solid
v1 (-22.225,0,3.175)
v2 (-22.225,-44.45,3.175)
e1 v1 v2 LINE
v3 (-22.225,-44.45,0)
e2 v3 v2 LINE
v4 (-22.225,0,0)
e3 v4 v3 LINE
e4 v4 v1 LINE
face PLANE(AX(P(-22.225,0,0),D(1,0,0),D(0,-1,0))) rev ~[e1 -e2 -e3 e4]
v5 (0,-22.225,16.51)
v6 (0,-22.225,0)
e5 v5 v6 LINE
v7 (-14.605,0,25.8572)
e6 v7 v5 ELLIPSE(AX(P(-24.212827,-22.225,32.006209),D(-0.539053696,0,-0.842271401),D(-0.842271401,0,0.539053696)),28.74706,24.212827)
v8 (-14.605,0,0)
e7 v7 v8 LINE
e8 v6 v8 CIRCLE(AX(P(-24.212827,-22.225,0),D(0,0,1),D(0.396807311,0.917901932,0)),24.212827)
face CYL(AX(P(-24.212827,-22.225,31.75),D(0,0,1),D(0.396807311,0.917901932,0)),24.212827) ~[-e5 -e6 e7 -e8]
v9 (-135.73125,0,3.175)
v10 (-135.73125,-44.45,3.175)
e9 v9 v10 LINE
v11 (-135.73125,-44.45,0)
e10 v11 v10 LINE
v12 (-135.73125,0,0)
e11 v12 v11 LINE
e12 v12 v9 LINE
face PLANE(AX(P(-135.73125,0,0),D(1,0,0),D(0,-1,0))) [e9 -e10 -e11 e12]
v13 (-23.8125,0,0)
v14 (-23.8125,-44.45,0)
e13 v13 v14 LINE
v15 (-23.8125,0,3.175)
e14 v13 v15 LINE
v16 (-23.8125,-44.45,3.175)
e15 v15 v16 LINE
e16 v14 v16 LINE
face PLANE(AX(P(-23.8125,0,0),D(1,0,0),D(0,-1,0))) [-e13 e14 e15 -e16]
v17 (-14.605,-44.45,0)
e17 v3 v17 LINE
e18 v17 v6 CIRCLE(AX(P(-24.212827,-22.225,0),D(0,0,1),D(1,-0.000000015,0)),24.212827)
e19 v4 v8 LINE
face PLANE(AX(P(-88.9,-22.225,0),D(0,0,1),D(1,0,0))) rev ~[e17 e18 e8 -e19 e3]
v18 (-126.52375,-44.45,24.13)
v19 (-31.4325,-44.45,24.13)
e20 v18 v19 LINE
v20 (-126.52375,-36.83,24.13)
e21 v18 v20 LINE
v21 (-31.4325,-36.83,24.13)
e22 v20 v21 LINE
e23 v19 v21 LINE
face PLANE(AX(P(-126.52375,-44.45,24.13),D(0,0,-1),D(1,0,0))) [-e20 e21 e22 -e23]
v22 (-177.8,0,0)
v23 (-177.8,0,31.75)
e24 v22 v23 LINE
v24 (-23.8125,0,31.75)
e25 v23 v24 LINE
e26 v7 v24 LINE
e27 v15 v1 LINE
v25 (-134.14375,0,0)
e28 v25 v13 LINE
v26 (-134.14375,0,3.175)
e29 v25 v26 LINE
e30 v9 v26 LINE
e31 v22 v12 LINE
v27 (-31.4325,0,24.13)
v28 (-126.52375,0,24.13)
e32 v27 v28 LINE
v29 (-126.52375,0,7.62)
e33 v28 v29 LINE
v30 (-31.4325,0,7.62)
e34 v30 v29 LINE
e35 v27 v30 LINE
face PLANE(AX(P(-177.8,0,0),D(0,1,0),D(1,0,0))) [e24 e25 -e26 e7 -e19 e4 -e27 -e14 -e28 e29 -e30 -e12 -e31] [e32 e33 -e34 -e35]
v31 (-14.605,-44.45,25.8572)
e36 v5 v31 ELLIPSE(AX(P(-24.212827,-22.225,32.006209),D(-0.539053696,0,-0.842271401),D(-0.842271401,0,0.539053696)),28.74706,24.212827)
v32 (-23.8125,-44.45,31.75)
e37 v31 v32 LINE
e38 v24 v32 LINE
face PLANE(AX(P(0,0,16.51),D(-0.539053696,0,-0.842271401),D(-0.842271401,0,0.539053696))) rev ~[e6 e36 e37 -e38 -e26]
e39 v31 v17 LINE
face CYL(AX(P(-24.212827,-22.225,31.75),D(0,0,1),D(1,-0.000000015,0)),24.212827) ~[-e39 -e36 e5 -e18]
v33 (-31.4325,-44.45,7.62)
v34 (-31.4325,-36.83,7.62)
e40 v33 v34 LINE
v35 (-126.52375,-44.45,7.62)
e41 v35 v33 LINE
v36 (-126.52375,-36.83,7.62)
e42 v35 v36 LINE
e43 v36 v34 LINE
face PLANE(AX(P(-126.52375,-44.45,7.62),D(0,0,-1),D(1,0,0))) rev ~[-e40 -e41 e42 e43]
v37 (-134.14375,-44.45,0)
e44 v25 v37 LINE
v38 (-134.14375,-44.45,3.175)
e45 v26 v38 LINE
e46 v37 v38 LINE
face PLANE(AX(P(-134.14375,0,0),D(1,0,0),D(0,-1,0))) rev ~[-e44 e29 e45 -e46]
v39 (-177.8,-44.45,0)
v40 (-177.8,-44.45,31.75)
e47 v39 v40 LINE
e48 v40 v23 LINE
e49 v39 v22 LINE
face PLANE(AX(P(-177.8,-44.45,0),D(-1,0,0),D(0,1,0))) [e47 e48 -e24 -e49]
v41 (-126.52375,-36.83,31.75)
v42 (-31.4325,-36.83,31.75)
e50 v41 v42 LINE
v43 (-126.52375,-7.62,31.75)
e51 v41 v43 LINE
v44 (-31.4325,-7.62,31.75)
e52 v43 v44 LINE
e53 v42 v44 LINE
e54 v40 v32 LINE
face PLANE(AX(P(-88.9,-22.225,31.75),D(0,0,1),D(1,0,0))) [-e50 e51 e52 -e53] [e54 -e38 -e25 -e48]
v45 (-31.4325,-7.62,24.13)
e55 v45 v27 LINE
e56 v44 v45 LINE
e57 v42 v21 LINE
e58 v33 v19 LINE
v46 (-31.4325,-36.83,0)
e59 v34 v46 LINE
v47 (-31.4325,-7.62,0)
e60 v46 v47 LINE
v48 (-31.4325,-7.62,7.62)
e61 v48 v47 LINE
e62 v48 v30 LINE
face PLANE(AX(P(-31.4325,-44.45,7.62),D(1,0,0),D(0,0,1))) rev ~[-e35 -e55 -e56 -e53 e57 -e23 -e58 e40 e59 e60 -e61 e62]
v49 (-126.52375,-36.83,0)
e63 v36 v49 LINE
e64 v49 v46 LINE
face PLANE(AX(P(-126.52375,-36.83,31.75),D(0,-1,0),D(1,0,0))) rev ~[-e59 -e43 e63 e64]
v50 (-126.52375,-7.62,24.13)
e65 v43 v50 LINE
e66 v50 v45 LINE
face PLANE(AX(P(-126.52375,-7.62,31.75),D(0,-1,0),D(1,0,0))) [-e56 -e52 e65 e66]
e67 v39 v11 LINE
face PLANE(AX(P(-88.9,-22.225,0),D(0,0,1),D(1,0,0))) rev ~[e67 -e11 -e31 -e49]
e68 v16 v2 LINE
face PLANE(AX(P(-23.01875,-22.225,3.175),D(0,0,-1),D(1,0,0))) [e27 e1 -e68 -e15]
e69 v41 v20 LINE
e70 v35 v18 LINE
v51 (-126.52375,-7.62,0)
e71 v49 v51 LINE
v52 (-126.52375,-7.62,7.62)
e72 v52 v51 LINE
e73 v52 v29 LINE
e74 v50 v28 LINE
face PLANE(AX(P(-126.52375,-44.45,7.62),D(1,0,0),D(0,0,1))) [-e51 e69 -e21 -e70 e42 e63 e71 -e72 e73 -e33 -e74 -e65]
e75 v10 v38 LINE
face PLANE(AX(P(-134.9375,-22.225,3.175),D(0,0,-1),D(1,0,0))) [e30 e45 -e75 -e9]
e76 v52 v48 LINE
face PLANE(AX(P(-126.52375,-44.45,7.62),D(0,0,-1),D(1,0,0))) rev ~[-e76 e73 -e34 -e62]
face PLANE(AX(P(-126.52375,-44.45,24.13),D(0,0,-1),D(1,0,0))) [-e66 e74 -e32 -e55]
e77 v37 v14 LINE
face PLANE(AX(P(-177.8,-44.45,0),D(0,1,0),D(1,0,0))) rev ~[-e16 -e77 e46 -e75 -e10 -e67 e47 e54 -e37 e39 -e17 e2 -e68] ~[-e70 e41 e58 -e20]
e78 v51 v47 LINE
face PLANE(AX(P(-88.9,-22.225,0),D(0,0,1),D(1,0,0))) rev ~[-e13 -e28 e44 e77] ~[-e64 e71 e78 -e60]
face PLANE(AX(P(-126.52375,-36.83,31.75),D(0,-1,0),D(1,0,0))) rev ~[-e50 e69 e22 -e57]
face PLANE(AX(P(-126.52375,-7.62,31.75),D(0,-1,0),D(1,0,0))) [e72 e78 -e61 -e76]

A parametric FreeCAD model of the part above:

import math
import FreeCAD as App
import Part
import Sketcher

V = App.Vector
Q = App.Units.Quantity


def add_polygon(sketch, points):
    """Adds a closed chain of lines whose ends are joined by coincident constraints."""
    first, n = sketch.GeometryCount, len(points)
    for a, b in zip(points, points[1:] + points[:1]):
        sketch.addGeometry(Part.LineSegment(App.Vector(*a, 0), App.Vector(*b, 0)), False)
    for i in range(n):
        sketch.addConstraint(Sketcher.Constraint("Coincident", first + i, 2, first + (i + 1) % n, 1))

doc = App.newDocument("Part")
params = doc.addObject("Spreadsheet::Sheet", "Params")
for row, (alias, value) in enumerate([
    ("sketch1_width", "7 in"),
    ("sketch1_height", "1.75 in"),
    ("pad1_length", "1.25 in"),
    ("sketch2_height", "1.75 in"),
    ("sketch2_width", "0.0625 in"),
    ("pocket1_length", "0.125 in"),
    ("sketch3_height", "1.15 in"),
    ("sketch4_height", "0.65 in"),
    ("sketch5_width", "0.575 in"),
    ("sketch5_height", "0.875 in"),
    ("sketch6_height", "0.6 in"),
    ("sketch6_width", "0.9375 in"),
], start=1):
    params.set(f"A{row}", alias)
    params.set(f"B{row}", "=" + value)
    params.setAlias(f"B{row}", alias)

body = doc.addObject("PartDesign::Body", "Body")

# Sketch on XY plane
sketch1 = body.newObject("Sketcher::SketchObject", "Sketch")
sketch1.AttachmentSupport = (doc.getObject("XY_Plane"), [""])
sketch1.MapMode = "FlatFace"
add_polygon(sketch1, [(-177.8, 0), (-177.8, -44.45), (0, -44.45), (0, 0)])  # lines 0-3
sketch1.addConstraint(Sketcher.Constraint("Vertical", 0))
sketch1.addConstraint(Sketcher.Constraint("Horizontal", 1))
sketch1.addConstraint(Sketcher.Constraint("Vertical", 2))
sketch1.addConstraint(Sketcher.Constraint("Horizontal", 3))
sketch1.addConstraint(Sketcher.Constraint("Coincident", 2, 2, -1, 1))
sketch1.addConstraint(Sketcher.Constraint("DistanceX", 1, 1, 1, 2, Q("7 in")))
sketch1.addConstraint(Sketcher.Constraint("DistanceY", 0, 2, 0, 1, Q("1.75 in")))
sketch1.setExpression("Constraints[9]", "Params.sketch1_width")
sketch1.setExpression("Constraints[10]", "Params.sketch1_height")
pad1 = body.newObject("PartDesign::Pad", "Pad")
pad1.Profile = sketch1
pad1.setExpression("Length", "Params.pad1_length")

# Sketch on XY plane
sketch2 = body.newObject("Sketcher::SketchObject", "Sketch001")
sketch2.AttachmentSupport = (doc.getObject("XY_Plane"), [""])
sketch2.MapMode = "FlatFace"
add_polygon(sketch2, [(-23.8125, -44.45), (-23.8125, 0), (-22.225, 0), (-22.225, -44.45)])  # lines 0-3
add_polygon(sketch2, [(-135.73125, -44.45), (-135.73125, 0), (-134.14375, 0), (-134.14375, -44.45)])  # lines 4-7
sketch2.addConstraint(Sketcher.Constraint("Vertical", 0))
sketch2.addConstraint(Sketcher.Constraint("Horizontal", 1))
sketch2.addConstraint(Sketcher.Constraint("Vertical", 2))
sketch2.addConstraint(Sketcher.Constraint("Horizontal", 3))
sketch2.addConstraint(Sketcher.Constraint("Vertical", 4))
sketch2.addConstraint(Sketcher.Constraint("Horizontal", 5))
sketch2.addConstraint(Sketcher.Constraint("Vertical", 6))
sketch2.addConstraint(Sketcher.Constraint("Horizontal", 7))
sketch2.addConstraint(Sketcher.Constraint("PointOnObject", 0, 2, -1))
sketch2.addConstraint(Sketcher.Constraint("PointOnObject", 4, 2, -1))
sketch2.addConstraint(Sketcher.Constraint("Horizontal", 3, 2, 6, 2))
sketch2.addConstraint(Sketcher.Constraint("Equal", 3, 5))
sketch2.addConstraint(Sketcher.Constraint("DistanceY", 0, 1, 0, 2, Q("1.75 in")))
sketch2.addConstraint(Sketcher.Constraint("DistanceX", 1, 1, 1, 2, Q("0.0625 in")))
sketch2.addConstraint(Sketcher.Constraint("DistanceX", 0, 2, -1, 1, Q("0.9375 in")))
sketch2.addConstraint(Sketcher.Constraint("DistanceX", 4, 2, -1, 1, Q("5.34375 in")))
sketch2.setExpression("Constraints[20]", "Params.sketch2_height")
sketch2.setExpression("Constraints[21]", "Params.sketch2_width")
pocket1 = body.newObject("PartDesign::Pocket", "Pocket")
pocket1.Profile = sketch2
pocket1.setExpression("Length", "Params.pocket1_length")
pocket1.Reversed = True

# Sketch on XY plane
sketch3 = body.newObject("Sketcher::SketchObject", "Sketch002")
sketch3.AttachmentSupport = (doc.getObject("XY_Plane"), [""])
sketch3.MapMode = "FlatFace"
sketch3.AttachmentOffset = App.Placement(V(0, 0, 1.25 * 25.4), App.Rotation())
add_polygon(sketch3, [(-126.52375, -7.62), (-126.52375, -36.83), (-31.4325, -36.83), (-31.4325, -7.62)])  # lines 0-3
sketch3.addConstraint(Sketcher.Constraint("Vertical", 0))
sketch3.addConstraint(Sketcher.Constraint("Horizontal", 1))
sketch3.addConstraint(Sketcher.Constraint("Vertical", 2))
sketch3.addConstraint(Sketcher.Constraint("Horizontal", 3))
sketch3.addConstraint(Sketcher.Constraint("DistanceY", 0, 2, 0, 1, Q("1.15 in")))
sketch3.addConstraint(Sketcher.Constraint("DistanceY", 2, 2, -1, 1, Q("0.3 in")))
sketch3.addConstraint(Sketcher.Constraint("DistanceX", 1, 2, -1, 1, Q("1.2375 in")))
sketch3.addConstraint(Sketcher.Constraint("DistanceX", 1, 1, 1, 2, 95.09125))
sketch3.setExpression("Constraints[8]", "Params.sketch3_height")
pocket2 = body.newObject("PartDesign::Pocket", "Pocket001")
pocket2.Profile = sketch3
pocket2.Type = "ThroughAll"

# Sketch on XZ plane
sketch4 = body.newObject("Sketcher::SketchObject", "Sketch003")
sketch4.AttachmentSupport = (doc.getObject("XZ_Plane"), [""])
sketch4.MapMode = "FlatFace"
sketch4.AttachmentOffset = App.Placement(V(0, 0, 1.75 * 25.4), App.Rotation())
add_polygon(sketch4, [(-126.52375, 24.13), (-126.52375, 7.62), (-31.4325, 7.62), (-31.4325, 24.13)])  # lines 0-3
sketch4.addConstraint(Sketcher.Constraint("Vertical", 0))
sketch4.addConstraint(Sketcher.Constraint("Horizontal", 1))
sketch4.addConstraint(Sketcher.Constraint("Vertical", 2))
sketch4.addConstraint(Sketcher.Constraint("Horizontal", 3))
sketch4.addConstraint(Sketcher.Constraint("DistanceY", 0, 2, 0, 1, Q("0.65 in")))
sketch4.addConstraint(Sketcher.Constraint("DistanceY", -1, 1, 0, 2, Q("0.3 in")))
sketch4.addConstraint(Sketcher.Constraint("DistanceX", 1, 2, -1, 1, Q("1.2375 in")))
sketch4.addConstraint(Sketcher.Constraint("DistanceX", 1, 1, 1, 2, 95.09125))
sketch4.setExpression("Constraints[8]", "Params.sketch4_height")
pocket3 = body.newObject("PartDesign::Pocket", "Pocket002")
pocket3.Profile = sketch4
pocket3.Type = "ThroughAll"

# Sketch on XY plane
sketch5 = body.newObject("Sketcher::SketchObject", "Sketch004")
sketch5.AttachmentSupport = (doc.getObject("XY_Plane"), [""])
sketch5.MapMode = "FlatFace"
sketch5.AttachmentOffset = App.Placement(V(0, 0, 1.25 * 25.4), App.Rotation())
sketch5.addGeometry(Part.ArcOfCircle(Part.Circle(V(-24.212827, -22.225, 0), V(0, 0, 1), 24.212827), math.radians(0.000001), math.radians(66.621261)), False)
sketch5.addGeometry(Part.LineSegment(V(0, -22.225, 0), V(0, 0, 0)), False)
sketch5.addGeometry(Part.LineSegment(V(0, 0, 0), V(-14.605, 0, 0)), False)
sketch5.addGeometry(Part.ArcOfCircle(Part.Circle(V(-24.212827, -22.225, 0), V(0, 0, 1), 24.212827), math.radians(-66.621261), math.radians(-0.000001)), False)
sketch5.addGeometry(Part.LineSegment(V(-14.605, -44.45, 0), V(0, -44.45, 0)), False)
sketch5.addGeometry(Part.LineSegment(V(0, -44.45, 0), V(0, -22.225, 0)), False)
sketch5.addConstraint(Sketcher.Constraint("Tangent", 0, 1, 1, 1))
sketch5.addConstraint(Sketcher.Constraint("Coincident", 1, 2, 2, 1))
sketch5.addConstraint(Sketcher.Constraint("Coincident", 2, 2, 0, 2))
sketch5.addConstraint(Sketcher.Constraint("Coincident", 3, 1, 4, 1))
sketch5.addConstraint(Sketcher.Constraint("Coincident", 4, 2, 5, 1))
sketch5.addConstraint(Sketcher.Constraint("Tangent", 5, 2, 3, 2))
sketch5.addConstraint(Sketcher.Constraint("Vertical", 1))
sketch5.addConstraint(Sketcher.Constraint("Horizontal", 2))
sketch5.addConstraint(Sketcher.Constraint("Horizontal", 4))
sketch5.addConstraint(Sketcher.Constraint("Vertical", 5))
sketch5.addConstraint(Sketcher.Constraint("Coincident", 1, 2, -1, 1))
sketch5.addConstraint(Sketcher.Constraint("Coincident", 3, 3, 0, 3))
sketch5.addConstraint(Sketcher.Constraint("Equal", 0, 3))
sketch5.addConstraint(Sketcher.Constraint("Vertical", 2, 2, 3, 1))
sketch5.addConstraint(Sketcher.Constraint("DistanceX", 2, 2, 2, 1, Q("0.575 in")))
sketch5.addConstraint(Sketcher.Constraint("DistanceY", 1, 1, 1, 2, Q("0.875 in")))
sketch5.setExpression("Constraints[14]", "Params.sketch5_width")
sketch5.setExpression("Constraints[15]", "Params.sketch5_height")
pocket4 = body.newObject("PartDesign::Pocket", "Pocket003")
pocket4.Profile = sketch5
pocket4.Type = "ThroughAll"

# Sketch on XZ plane
sketch6 = body.newObject("Sketcher::SketchObject", "Sketch005")
sketch6.AttachmentSupport = (doc.getObject("XZ_Plane"), [""])
sketch6.MapMode = "FlatFace"
add_polygon(sketch6, [(0, 16.51), (-23.8125, 31.75), (0, 31.75)])  # lines 0-2
sketch6.addConstraint(Sketcher.Constraint("Horizontal", 1))
sketch6.addConstraint(Sketcher.Constraint("Vertical", 2))
sketch6.addConstraint(Sketcher.Constraint("PointOnObject", 1, 2, -2))
sketch6.addConstraint(Sketcher.Constraint("DistanceY", 2, 2, 2, 1, Q("0.6 in")))
sketch6.addConstraint(Sketcher.Constraint("DistanceX", 1, 1, 1, 2, Q("0.9375 in")))
sketch6.addConstraint(Sketcher.Constraint("DistanceY", -1, 1, 0, 2, Q("1.25 in")))
sketch6.setExpression("Constraints[6]", "Params.sketch6_height")
sketch6.setExpression("Constraints[7]", "Params.sketch6_width")
pocket5 = body.newObject("PartDesign::Pocket", "Pocket004")
pocket5.Profile = sketch6
pocket5.Type = "ThroughAll"
pocket5.Reversed = True

doc.recompute()
